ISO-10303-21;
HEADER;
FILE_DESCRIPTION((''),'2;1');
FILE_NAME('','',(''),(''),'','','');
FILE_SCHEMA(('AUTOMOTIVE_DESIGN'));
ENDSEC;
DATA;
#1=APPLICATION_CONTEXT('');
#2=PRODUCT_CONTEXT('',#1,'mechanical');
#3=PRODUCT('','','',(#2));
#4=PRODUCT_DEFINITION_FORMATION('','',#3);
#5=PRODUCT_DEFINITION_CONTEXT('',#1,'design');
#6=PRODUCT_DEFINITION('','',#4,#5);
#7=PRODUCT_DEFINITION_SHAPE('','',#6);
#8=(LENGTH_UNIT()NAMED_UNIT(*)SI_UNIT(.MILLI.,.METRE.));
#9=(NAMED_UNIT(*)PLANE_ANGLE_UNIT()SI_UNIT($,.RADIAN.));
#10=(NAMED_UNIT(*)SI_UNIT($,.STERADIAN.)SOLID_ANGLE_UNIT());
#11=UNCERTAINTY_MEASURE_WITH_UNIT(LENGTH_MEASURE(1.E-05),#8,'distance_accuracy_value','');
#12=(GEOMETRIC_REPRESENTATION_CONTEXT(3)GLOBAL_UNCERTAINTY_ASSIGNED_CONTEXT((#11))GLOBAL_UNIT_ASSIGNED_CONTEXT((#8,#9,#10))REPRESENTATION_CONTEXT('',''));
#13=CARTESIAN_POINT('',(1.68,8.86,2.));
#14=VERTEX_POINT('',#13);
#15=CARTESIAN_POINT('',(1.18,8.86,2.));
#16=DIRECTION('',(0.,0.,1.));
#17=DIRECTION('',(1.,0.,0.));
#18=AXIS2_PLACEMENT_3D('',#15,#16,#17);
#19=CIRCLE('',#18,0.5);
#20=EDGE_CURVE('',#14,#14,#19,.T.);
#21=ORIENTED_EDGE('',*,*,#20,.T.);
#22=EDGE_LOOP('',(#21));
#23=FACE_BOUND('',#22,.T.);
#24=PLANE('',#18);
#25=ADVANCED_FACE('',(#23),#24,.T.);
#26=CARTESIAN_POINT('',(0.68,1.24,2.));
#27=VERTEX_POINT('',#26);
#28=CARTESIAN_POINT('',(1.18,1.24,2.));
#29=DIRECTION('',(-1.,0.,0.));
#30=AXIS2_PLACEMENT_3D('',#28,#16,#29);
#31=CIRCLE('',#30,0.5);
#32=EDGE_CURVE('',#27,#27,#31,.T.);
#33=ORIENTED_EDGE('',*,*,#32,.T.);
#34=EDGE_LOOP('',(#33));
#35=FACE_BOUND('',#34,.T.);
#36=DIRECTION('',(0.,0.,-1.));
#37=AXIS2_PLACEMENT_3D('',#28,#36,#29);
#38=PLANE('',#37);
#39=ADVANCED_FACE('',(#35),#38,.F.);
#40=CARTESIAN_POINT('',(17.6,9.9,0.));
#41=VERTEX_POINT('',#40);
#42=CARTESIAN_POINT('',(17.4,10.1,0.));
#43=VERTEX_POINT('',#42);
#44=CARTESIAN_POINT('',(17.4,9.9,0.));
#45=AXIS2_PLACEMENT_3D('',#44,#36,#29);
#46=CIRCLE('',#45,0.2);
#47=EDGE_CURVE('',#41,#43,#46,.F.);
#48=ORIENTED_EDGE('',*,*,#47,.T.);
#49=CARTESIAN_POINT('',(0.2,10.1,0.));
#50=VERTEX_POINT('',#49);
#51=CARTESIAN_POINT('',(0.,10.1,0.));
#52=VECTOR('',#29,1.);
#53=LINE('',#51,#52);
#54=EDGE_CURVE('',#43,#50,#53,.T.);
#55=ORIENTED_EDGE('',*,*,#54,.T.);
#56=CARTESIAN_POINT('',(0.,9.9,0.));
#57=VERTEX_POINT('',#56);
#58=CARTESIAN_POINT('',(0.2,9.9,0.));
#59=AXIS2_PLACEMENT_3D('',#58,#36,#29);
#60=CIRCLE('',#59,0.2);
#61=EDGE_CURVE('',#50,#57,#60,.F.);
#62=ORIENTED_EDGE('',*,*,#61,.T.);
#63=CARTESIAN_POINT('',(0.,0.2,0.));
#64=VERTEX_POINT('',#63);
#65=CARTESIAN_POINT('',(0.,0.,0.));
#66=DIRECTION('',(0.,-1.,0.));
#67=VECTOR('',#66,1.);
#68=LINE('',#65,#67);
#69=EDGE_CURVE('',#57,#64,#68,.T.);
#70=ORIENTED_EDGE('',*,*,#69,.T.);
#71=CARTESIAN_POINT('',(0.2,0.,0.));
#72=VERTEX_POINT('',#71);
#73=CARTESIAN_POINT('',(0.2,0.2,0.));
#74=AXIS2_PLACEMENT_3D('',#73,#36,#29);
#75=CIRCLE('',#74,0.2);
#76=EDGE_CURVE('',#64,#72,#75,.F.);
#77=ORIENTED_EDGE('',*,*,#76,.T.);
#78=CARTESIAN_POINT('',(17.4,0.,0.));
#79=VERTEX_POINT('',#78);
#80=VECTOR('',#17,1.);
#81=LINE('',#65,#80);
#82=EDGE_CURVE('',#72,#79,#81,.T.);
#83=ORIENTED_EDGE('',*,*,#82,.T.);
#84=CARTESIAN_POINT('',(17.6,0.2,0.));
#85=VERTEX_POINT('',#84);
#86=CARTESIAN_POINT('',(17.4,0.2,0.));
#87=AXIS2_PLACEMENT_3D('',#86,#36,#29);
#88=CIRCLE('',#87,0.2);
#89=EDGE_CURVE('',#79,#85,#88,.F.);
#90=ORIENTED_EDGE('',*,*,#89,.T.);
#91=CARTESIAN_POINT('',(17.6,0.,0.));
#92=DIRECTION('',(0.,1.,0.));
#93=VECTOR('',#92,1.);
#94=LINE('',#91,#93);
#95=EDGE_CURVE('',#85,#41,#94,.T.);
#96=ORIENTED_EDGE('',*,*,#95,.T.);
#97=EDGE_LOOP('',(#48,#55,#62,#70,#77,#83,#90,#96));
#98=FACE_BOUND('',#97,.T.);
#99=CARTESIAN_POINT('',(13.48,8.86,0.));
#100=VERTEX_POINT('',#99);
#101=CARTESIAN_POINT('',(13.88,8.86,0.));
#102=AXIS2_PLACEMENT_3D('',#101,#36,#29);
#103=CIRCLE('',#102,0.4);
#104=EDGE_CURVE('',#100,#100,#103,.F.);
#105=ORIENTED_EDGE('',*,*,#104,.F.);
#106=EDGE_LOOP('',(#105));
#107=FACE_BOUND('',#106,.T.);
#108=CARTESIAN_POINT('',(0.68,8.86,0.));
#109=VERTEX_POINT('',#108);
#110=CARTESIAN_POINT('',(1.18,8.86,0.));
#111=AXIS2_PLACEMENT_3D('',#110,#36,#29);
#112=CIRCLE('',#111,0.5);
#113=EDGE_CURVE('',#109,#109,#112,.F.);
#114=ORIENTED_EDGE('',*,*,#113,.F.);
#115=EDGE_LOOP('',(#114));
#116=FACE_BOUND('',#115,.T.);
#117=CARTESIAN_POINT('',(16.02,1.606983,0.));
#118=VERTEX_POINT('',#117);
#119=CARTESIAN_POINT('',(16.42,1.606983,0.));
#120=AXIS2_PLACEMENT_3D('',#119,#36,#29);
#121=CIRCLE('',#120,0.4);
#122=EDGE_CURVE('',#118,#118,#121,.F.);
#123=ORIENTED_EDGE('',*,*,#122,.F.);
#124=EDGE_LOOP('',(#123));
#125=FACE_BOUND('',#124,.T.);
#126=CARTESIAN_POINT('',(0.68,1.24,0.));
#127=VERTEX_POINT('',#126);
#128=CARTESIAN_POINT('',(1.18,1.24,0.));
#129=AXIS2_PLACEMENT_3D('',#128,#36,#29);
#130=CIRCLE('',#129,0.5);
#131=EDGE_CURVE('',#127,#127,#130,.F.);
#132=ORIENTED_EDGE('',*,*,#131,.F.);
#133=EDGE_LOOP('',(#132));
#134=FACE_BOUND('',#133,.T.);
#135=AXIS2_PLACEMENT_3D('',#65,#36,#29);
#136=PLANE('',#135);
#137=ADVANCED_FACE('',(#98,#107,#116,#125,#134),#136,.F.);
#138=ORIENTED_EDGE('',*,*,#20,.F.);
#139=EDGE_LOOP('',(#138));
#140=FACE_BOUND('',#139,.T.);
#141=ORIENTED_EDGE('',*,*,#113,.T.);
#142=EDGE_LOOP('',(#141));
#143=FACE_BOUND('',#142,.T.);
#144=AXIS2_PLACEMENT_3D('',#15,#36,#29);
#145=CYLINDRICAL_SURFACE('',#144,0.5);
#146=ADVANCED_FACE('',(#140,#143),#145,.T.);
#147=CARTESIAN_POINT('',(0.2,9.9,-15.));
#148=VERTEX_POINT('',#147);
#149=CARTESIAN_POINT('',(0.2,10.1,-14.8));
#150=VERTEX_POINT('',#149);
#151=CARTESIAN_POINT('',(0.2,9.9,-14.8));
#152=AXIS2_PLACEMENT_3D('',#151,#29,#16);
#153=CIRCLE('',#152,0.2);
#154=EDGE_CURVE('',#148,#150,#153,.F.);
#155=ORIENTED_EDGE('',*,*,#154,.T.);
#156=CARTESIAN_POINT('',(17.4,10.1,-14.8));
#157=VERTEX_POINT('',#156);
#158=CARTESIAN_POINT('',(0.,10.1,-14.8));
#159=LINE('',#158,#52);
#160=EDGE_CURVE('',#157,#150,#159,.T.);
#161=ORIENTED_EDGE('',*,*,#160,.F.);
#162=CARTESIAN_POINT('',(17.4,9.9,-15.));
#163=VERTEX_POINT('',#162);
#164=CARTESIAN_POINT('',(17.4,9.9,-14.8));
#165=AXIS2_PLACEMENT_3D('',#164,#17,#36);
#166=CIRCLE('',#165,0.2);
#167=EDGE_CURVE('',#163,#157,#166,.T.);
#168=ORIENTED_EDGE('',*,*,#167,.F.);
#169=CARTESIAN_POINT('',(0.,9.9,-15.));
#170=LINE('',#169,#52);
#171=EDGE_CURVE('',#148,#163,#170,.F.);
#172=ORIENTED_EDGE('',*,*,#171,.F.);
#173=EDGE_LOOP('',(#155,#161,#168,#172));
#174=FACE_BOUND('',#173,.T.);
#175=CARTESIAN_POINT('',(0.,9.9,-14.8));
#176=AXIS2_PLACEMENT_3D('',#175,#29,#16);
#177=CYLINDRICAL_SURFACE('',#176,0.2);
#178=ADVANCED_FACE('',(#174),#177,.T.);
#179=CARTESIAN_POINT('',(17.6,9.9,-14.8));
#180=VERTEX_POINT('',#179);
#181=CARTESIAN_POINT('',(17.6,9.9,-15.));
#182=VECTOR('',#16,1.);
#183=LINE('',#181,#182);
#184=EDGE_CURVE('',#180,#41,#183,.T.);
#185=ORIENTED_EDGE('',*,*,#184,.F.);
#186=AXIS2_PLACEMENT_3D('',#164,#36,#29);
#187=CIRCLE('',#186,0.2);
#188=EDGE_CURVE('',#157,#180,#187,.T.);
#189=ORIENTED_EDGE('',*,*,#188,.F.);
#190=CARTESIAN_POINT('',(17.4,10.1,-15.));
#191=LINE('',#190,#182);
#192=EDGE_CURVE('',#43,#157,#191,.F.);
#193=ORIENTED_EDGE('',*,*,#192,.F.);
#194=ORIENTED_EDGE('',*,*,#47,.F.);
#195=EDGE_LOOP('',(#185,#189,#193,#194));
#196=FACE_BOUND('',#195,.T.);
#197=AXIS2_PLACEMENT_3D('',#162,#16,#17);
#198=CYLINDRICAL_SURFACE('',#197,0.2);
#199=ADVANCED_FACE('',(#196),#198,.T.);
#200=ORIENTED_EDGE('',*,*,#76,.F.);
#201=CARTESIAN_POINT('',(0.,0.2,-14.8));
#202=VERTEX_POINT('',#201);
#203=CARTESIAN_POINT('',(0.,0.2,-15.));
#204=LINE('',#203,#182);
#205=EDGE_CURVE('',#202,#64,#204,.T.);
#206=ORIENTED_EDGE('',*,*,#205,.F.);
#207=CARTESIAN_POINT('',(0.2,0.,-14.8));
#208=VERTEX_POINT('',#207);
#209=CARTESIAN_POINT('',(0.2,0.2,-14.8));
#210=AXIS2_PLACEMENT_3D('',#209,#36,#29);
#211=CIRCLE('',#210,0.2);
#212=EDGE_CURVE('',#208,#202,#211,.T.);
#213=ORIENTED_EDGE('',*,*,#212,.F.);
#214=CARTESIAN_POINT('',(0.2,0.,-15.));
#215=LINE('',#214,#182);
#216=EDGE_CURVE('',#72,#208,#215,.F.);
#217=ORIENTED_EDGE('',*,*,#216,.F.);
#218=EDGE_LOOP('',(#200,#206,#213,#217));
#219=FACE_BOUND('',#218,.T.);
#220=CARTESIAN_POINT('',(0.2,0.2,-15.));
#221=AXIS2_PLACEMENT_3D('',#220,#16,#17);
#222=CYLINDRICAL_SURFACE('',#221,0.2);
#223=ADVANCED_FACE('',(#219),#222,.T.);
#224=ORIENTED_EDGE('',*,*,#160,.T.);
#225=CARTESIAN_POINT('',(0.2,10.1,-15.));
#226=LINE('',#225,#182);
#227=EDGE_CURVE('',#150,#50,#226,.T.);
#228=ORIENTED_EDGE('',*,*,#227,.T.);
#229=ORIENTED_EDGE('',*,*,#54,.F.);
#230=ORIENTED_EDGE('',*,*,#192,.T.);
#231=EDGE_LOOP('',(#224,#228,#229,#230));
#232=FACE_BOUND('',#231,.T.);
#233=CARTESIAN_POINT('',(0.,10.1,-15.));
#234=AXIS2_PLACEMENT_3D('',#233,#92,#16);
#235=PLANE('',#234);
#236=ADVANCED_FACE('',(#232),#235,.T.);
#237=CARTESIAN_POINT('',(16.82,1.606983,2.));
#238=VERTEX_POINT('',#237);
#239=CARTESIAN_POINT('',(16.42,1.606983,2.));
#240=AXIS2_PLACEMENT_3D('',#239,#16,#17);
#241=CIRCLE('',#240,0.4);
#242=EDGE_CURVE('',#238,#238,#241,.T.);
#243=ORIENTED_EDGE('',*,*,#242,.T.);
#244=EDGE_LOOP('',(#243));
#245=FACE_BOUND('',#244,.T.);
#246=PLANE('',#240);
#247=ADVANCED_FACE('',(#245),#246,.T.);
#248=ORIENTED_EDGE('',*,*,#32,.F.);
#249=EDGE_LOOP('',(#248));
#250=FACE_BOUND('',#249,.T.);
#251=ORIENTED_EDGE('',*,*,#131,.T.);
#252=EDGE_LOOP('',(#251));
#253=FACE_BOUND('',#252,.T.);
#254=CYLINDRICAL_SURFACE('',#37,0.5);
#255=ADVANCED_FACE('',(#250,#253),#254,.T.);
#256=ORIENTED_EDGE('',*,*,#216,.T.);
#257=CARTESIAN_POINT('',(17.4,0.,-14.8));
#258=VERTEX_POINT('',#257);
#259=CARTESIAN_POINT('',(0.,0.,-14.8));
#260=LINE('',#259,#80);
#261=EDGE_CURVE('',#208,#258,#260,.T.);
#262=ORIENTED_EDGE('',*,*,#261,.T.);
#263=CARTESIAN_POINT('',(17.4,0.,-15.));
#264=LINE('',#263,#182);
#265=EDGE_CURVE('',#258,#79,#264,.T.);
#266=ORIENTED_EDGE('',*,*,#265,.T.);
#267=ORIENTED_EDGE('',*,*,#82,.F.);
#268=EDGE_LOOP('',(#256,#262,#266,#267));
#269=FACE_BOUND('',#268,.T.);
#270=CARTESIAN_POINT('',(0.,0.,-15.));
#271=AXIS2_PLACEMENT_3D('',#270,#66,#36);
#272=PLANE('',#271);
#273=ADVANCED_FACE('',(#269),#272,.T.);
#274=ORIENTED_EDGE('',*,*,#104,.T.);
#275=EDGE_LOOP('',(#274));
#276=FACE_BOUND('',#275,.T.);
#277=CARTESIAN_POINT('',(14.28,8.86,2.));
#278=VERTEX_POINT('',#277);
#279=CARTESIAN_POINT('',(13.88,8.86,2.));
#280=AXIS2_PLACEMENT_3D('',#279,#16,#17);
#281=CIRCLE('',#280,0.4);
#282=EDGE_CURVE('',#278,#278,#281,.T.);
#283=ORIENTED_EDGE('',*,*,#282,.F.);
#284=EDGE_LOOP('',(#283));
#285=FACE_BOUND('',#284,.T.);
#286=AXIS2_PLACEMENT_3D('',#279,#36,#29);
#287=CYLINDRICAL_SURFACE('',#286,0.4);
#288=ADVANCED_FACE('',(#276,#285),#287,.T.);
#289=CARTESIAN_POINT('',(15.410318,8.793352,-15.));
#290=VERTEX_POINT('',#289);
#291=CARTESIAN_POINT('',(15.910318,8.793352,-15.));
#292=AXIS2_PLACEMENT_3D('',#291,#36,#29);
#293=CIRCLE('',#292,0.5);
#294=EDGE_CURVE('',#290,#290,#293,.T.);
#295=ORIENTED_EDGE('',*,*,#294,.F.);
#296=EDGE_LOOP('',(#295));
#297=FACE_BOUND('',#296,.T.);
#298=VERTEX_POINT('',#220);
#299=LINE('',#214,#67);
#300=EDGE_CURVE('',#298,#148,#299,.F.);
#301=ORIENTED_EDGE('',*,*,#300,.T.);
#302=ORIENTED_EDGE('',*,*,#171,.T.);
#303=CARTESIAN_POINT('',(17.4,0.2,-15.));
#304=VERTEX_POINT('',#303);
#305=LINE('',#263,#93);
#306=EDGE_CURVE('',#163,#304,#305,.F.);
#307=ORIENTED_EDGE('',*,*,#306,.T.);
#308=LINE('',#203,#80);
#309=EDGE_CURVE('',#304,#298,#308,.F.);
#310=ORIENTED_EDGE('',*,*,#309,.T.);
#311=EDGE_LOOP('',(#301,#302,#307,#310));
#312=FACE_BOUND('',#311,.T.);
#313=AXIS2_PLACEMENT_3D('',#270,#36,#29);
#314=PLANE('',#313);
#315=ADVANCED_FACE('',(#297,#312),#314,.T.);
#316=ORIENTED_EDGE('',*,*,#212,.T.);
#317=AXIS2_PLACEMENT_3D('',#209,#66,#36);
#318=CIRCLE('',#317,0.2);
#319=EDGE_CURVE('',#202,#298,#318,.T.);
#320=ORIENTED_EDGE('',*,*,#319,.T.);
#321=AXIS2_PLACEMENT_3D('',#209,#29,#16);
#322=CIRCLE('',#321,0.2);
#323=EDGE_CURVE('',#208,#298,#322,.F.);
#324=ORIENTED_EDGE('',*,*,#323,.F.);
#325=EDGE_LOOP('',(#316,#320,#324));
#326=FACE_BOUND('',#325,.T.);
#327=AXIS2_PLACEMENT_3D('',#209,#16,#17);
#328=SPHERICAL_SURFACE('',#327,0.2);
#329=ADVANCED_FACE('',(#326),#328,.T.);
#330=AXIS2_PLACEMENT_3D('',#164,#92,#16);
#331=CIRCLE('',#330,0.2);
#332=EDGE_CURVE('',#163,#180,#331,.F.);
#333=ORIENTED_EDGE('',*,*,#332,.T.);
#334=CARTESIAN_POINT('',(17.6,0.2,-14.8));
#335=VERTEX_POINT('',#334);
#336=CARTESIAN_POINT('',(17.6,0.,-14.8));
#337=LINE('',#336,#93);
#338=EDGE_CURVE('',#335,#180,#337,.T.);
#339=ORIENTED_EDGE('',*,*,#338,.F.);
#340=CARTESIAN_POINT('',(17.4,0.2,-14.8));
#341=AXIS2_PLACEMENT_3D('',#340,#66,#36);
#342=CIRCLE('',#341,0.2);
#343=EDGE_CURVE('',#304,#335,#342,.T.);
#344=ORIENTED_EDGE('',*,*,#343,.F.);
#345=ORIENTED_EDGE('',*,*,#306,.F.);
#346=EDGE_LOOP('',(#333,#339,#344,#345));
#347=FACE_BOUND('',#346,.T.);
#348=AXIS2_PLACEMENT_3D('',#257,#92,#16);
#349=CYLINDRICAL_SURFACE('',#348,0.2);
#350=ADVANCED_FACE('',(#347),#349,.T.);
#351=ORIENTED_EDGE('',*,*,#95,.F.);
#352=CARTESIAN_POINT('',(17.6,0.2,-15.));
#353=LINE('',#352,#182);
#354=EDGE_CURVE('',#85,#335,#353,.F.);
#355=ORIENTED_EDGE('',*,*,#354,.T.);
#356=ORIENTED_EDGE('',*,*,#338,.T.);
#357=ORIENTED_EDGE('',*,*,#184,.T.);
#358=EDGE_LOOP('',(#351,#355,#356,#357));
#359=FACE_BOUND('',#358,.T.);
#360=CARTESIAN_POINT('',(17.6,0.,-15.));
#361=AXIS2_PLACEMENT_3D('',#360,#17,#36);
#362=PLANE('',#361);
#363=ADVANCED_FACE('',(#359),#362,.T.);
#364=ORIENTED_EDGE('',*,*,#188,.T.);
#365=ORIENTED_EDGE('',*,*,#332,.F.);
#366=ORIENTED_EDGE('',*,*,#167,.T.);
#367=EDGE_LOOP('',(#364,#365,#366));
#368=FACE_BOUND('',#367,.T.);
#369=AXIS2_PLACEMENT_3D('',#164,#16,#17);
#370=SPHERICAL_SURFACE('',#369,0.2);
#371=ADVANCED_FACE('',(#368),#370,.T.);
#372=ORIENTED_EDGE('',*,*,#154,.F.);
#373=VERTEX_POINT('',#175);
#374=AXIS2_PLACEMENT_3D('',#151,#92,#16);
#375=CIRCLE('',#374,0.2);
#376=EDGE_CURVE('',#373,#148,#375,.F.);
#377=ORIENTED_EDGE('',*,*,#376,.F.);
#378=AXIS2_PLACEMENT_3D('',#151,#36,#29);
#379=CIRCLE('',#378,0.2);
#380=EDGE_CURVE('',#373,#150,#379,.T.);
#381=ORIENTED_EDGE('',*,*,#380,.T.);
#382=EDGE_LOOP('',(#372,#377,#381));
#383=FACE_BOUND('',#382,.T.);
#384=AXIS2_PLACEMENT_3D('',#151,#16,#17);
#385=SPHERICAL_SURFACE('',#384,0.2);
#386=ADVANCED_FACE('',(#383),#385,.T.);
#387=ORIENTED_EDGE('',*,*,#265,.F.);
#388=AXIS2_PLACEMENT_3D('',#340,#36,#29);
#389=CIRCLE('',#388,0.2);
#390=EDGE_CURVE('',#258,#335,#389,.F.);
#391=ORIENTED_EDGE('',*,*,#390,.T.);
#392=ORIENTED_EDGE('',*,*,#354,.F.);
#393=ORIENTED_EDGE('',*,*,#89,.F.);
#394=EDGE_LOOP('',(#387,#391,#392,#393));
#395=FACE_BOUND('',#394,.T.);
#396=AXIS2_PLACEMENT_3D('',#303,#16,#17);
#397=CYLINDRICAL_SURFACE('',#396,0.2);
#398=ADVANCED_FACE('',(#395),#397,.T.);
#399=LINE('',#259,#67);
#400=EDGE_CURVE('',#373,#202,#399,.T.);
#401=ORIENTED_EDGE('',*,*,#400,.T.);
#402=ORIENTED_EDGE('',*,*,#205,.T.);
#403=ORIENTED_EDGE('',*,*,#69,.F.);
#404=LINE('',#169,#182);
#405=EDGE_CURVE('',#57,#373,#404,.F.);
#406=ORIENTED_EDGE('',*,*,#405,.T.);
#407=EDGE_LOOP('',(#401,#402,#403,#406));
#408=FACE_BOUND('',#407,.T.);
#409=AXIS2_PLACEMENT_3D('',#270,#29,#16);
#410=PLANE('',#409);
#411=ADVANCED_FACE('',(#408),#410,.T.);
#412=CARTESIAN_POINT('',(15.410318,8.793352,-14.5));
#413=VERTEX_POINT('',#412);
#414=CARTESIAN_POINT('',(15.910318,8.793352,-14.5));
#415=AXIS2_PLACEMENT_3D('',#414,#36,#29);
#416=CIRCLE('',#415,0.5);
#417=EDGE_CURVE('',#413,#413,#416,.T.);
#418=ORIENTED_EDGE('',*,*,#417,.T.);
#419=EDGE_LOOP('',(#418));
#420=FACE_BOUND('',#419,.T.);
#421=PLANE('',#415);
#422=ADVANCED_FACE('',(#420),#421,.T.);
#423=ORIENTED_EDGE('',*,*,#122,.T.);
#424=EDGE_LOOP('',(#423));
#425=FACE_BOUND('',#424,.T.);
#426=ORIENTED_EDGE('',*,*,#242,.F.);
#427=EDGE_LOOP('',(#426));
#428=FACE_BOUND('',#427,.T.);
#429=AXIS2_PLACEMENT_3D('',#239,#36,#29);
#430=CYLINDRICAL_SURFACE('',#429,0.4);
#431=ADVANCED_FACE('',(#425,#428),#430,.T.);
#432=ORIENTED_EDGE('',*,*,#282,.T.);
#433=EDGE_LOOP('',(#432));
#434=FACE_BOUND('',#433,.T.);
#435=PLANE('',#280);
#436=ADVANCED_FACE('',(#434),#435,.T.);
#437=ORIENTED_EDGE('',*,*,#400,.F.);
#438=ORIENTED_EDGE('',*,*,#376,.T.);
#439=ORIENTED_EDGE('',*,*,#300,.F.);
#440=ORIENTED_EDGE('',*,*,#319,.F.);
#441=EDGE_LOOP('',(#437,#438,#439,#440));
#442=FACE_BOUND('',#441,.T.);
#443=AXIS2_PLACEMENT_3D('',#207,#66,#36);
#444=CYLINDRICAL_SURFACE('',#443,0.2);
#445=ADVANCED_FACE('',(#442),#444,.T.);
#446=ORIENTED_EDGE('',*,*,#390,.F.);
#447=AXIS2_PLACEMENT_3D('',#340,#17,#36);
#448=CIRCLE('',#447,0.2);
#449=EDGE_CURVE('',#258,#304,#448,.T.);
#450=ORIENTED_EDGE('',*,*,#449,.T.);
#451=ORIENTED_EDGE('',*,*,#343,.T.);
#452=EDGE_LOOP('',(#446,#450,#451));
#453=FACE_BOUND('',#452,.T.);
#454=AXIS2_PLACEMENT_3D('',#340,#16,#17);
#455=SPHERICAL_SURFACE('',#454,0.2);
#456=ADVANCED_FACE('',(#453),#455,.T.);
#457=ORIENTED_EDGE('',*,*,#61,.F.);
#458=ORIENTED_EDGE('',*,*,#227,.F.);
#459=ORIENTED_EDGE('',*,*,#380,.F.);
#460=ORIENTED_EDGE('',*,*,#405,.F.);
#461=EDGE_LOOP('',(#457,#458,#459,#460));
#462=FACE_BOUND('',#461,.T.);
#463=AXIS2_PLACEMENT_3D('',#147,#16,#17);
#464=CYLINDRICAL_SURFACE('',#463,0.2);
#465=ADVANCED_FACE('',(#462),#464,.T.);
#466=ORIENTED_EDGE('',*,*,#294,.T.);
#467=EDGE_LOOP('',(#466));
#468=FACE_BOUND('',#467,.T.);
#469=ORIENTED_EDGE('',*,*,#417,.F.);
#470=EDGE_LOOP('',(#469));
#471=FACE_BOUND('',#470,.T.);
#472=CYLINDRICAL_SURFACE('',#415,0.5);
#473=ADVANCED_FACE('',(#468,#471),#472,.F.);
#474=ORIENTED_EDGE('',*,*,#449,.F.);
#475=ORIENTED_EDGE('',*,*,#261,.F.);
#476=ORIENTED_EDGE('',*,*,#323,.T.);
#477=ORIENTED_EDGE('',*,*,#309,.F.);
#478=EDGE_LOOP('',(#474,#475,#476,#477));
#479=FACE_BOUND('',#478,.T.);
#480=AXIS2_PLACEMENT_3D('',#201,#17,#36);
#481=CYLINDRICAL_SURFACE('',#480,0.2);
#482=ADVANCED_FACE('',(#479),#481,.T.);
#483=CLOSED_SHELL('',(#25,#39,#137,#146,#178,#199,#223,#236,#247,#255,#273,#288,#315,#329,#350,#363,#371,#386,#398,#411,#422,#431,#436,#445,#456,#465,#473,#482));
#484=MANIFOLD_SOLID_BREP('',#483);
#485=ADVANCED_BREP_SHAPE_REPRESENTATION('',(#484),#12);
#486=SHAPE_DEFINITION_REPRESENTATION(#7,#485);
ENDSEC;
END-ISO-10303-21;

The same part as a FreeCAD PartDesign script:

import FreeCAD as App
import Part
import Sketcher
Q = App.Units.Quantity


def edges_at(feature, points):
    """Names of the edges that pass closest to the given points."""
    edges = feature.Shape.Edges
    near = lambda p: min(range(len(edges)), key=lambda i: edges[i].distToShape(Part.Vertex(*p))[0])
    return sorted({f"Edge{near(p) + 1}" for p in points})


def add_polygon(sketch, points):
    """Adds a closed chain of lines whose ends are joined by coincident constraints."""
    first, n = sketch.GeometryCount, len(points)
    for a, b in zip(points, points[1:] + points[:1]):
        sketch.addGeometry(Part.LineSegment(App.Vector(*a, 0), App.Vector(*b, 0)), False)
    for i in range(n):
        sketch.addConstraint(Sketcher.Constraint("Coincident", first + i, 2, first + (i + 1) % n, 1))

doc = App.newDocument("Part")
body = doc.addObject("PartDesign::Body", "Body")

# Sketch on XY plane
sketch1 = body.newObject("Sketcher::SketchObject", "Sketch")
sketch1.AttachmentSupport = (doc.getObject("XY_Plane"), [""])
sketch1.MapMode = "FlatFace"
add_polygon(sketch1, [(0, 10), (0, 0), (18, 0), (18, 10)])  # lines 0-3
sketch1.addConstraint([
    Sketcher.Constraint("Vertical", 0),
    Sketcher.Constraint("Horizontal", 1),
    Sketcher.Constraint("Vertical", 2),
    Sketcher.Constraint("Horizontal", 3),
    Sketcher.Constraint("Coincident", 0, 2, -1, 1),
    Sketcher.Constraint("DistanceX", 1, 1, 1, 2, Q("17.6 mm")),
    Sketcher.Constraint("DistanceY", 0, 2, 0, 1, Q("10.1 mm")),
])
pad1 = body.newObject("PartDesign::Pad", "Pad")
pad1.Profile = sketch1
pad1.Length = 15
pad1.Reversed = True

# Sketch on XY plane
sketch2 = body.newObject("Sketcher::SketchObject", "Sketch001")
sketch2.AttachmentSupport = (doc.getObject("XY_Plane"), [""])
sketch2.MapMode = "FlatFace"
sketch2.addGeometry([
    Part.Circle(App.Vector(1.18, 8.86, 0), App.Vector(0, 0, 1), 0.5),
    Part.Circle(App.Vector(13.88, 8.86, 0), App.Vector(0, 0, 1), 0.4),
    Part.Circle(App.Vector(16.42, 1.61, 0), App.Vector(0, 0, 1), 0.4),
    Part.Circle(App.Vector(1.18, 1.24, 0), App.Vector(0, 0, 1), 0.5),
], False)
sketch2.addConstraint([
    Sketcher.Constraint("Equal", 1, 2),
    Sketcher.Constraint("Equal", 0, 3),
    Sketcher.Constraint("Horizontal", 0, 3, 1, 3),
    Sketcher.Constraint("Vertical", 0, 3, 3, 3),
    Sketcher.Constraint("Diameter", 0, Q("1 mm")),
    Sketcher.Constraint("Diameter", 1, Q("0.8 mm")),
    Sketcher.Constraint("DistanceX", 0, 3, 1, 3, Q("12.7 mm")),
    Sketcher.Constraint("DistanceX", -1, 1, 0, 3, Q("1.18 mm")),
    Sketcher.Constraint("DistanceY", -1, 1, 0, 3, Q("8.86 mm")),
    Sketcher.Constraint("DistanceX", -1, 1, 2, 3, Q("16.42 mm")),
    Sketcher.Constraint("DistanceY", -1, 1, 3, 3, Q("1.24 mm")),
    Sketcher.Constraint("DistanceY", -1, 1, 2, 3, Q("1.606983 mm")),
])
pad2 = body.newObject("PartDesign::Pad", "Pad001")
pad2.Profile = sketch2
pad2.Length = 2
doc.recompute()

fillet = body.newObject("PartDesign::Fillet", "Fillet")
fillet.Base = (pad2, edges_at(pad2, [
    (17.6, 5.05, -15),
    (8.8, 10.1, -15),
    (0, 5.05, -15),
    (8.8, 0, -15),
    (0, 10.1, -7.5),
    (17.6, 10.1, -7.5),
    (17.6, 0, -7.5),
    (0, 0, -7.5),
]))
fillet.Radius = 0.2

# Sketch on XY plane
sketch3 = body.newObject("Sketcher::SketchObject", "Sketch002")
sketch3.AttachmentSupport = (doc.getObject("XY_Plane"), [""])
sketch3.MapMode = "FlatFace"
sketch3.AttachmentOffset = App.Placement(App.Vector(0, 0, -15), App.Rotation())
sketch3.addGeometry(Part.Circle(App.Vector(15.9, 8.8, 0), App.Vector(0, 0, 1), 0.5), False)
sketch3.addConstraint([
    Sketcher.Constraint("Diameter", 0, Q("1 mm")),
    Sketcher.Constraint("DistanceY", -1, 1, 0, 3, Q("8.793352 mm")),
    Sketcher.Constraint("DistanceX", -1, 1, 0, 3, Q("15.910318 mm")),
])
pocket1 = body.newObject("PartDesign::Pocket", "Pocket")
pocket1.Profile = sketch3
pocket1.Length = 0.5
pocket1.Reversed = True

doc.recompute()
